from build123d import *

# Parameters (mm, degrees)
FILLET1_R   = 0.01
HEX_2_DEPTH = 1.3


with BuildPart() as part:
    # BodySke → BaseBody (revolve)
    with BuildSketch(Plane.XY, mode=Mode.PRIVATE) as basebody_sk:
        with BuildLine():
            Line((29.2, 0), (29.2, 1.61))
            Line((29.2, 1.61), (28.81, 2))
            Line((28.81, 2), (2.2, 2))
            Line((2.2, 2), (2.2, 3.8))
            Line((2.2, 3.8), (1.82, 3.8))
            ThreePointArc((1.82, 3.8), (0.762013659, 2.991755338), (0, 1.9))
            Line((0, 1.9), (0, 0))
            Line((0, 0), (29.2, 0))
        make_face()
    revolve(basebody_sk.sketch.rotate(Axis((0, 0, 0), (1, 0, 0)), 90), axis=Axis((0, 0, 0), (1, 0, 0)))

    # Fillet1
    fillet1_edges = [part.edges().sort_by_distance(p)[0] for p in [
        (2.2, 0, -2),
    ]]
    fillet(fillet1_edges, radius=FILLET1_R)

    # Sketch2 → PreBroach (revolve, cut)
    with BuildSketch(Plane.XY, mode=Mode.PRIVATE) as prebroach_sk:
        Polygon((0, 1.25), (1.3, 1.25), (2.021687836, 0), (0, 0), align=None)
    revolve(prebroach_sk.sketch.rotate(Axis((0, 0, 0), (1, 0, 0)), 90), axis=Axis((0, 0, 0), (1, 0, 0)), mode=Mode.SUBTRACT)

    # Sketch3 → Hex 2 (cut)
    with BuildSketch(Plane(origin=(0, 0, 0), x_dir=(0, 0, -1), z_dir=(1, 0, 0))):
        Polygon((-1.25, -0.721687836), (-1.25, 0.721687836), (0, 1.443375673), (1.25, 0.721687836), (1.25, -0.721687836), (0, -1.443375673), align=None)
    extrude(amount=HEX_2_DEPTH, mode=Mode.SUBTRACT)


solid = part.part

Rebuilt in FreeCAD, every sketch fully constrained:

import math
import FreeCAD as App
import Part
import Sketcher

V = App.Vector
Q = App.Units.Quantity


def edges_at(feature, points):
    """Names of the edges that pass closest to the given points."""
    edges = feature.Shape.Edges
    near = lambda p: min(range(len(edges)), key=lambda i: edges[i].distToShape(Part.Vertex(*p))[0])
    return sorted({f"Edge{near(p) + 1}" for p in points})

doc = App.newDocument("Part")
body = doc.addObject("PartDesign::Body", "Body")

sketch1 = doc.addObject("Sketcher::SketchObject", "Sketch")
body.addObject(sketch1)
sketch1.AttachmentSupport = (doc.XY_Plane, [""])
sketch1.MapMode = "FlatFace"
sketch1.addGeometry(Part.LineSegment(V(29.2, 0, 0), V(29.2, 1.61, 0)), False)
sketch1.addGeometry(Part.LineSegment(V(29.2, 1.61, 0), V(28.81, 2, 0)), False)
sketch1.addGeometry(Part.LineSegment(V(28.81, 2, 0), V(2.2, 2, 0)), False)
sketch1.addGeometry(Part.LineSegment(V(2.2, 2, 0), V(2.2, 3.8, 0)), False)
sketch1.addGeometry(Part.LineSegment(V(2.2, 3.8, 0), V(1.82, 3.8, 0)), False)
sketch1.addGeometry(Part.ArcOfCircle(Part.Circle(V(3.89, 0, 0), V(0, 0, 1), 4.32), math.radians(119), math.radians(154)), False)
sketch1.addGeometry(Part.LineSegment(V(0, 1.9, 0), V(0, 0, 0)), False)
sketch1.addGeometry(Part.LineSegment(V(0, 0, 0), V(29.2, 0, 0)), False)
sketch1.addConstraint(Sketcher.Constraint("Coincident", 0, 2, 1, 1))
sketch1.addConstraint(Sketcher.Constraint("Coincident", 1, 2, 2, 1))
sketch1.addConstraint(Sketcher.Constraint("Coincident", 2, 2, 3, 1))
sketch1.addConstraint(Sketcher.Constraint("Coincident", 3, 2, 4, 1))
sketch1.addConstraint(Sketcher.Constraint("Coincident", 4, 2, 5, 1))
sketch1.addConstraint(Sketcher.Constraint("Coincident", 5, 2, 6, 1))
sketch1.addConstraint(Sketcher.Constraint("Coincident", 6, 2, 7, 1))
sketch1.addConstraint(Sketcher.Constraint("Coincident", 7, 2, 0, 1))
sketch1.addConstraint(Sketcher.Constraint("Vertical", 0))
sketch1.addConstraint(Sketcher.Constraint("Horizontal", 2))
sketch1.addConstraint(Sketcher.Constraint("Vertical", 3))
sketch1.addConstraint(Sketcher.Constraint("Horizontal", 4))
sketch1.addConstraint(Sketcher.Constraint("Vertical", 6))
sketch1.addConstraint(Sketcher.Constraint("Horizontal", 7))
sketch1.addConstraint(Sketcher.Constraint("Coincident", 6, 2, -1, 1))
sketch1.addConstraint(Sketcher.Constraint("PointOnObject", 5, 3, -1))
sketch1.addConstraint(Sketcher.Constraint("Angle", 1, Q("135 deg")))
sketch1.addConstraint(Sketcher.Constraint("DistanceX", 7, 1, 7, 2, Q("29.2 mm")))
sketch1.addConstraint(Sketcher.Constraint("DistanceY", 3, 1, 3, 2, Q("1.8 mm")))
sketch1.addConstraint(Sketcher.Constraint("DistanceY", 6, 2, 6, 1, Q("1.9 mm")))
sketch1.addConstraint(Sketcher.Constraint("DistanceY", -1, 1, 1, 2, Q("2 mm")))
sketch1.addConstraint(Sketcher.Constraint("DistanceX", 2, 2, 0, 2, Q("27 mm")))
sketch1.addConstraint(Sketcher.Constraint("DistanceX", 2, 2, 2, 1, Q("26.61 mm")))
sketch1.addConstraint(Sketcher.Constraint("DistanceX", 4, 2, 4, 1, Q("0.38 mm")))
revolution = doc.addObject("PartDesign::Revolution", "Revolution")
body.addObject(revolution)
revolution.Profile = sketch1
revolution.ReferenceAxis = (sketch1, ["H_Axis"])
revolution.Angle = 360
doc.recompute()

fillet = doc.addObject("PartDesign::Fillet", "Fillet")
body.addObject(fillet)
fillet.Base = (revolution, edges_at(revolution, [(2.2, 0, -2)]))
fillet.Radius = 0.01

sketch2 = doc.addObject("Sketcher::SketchObject", "Sketch001")
body.addObject(sketch2)
sketch2.AttachmentSupport = (doc.XY_Plane, [""])
sketch2.MapMode = "FlatFace"
sketch2.addGeometry(Part.LineSegment(V(1.3, 1.2, 0), V(0, 1.2, 0)), False)
sketch2.addGeometry(Part.LineSegment(V(0, 1.2, 0), V(0, 0, 0)), False)
sketch2.addGeometry(Part.LineSegment(V(0, 0, 0), V(2, 0, 0)), False)
sketch2.addGeometry(Part.LineSegment(V(2, 0, 0), V(1.3, 1.2, 0)), False)
sketch2.addConstraint(Sketcher.Constraint("Coincident", 0, 2, 1, 1))
sketch2.addConstraint(Sketcher.Constraint("Coincident", 1, 2, 2, 1))
sketch2.addConstraint(Sketcher.Constraint("Coincident", 2, 2, 3, 1))
sketch2.addConstraint(Sketcher.Constraint("Coincident", 3, 2, 0, 1))
sketch2.addConstraint(Sketcher.Constraint("Horizontal", 0))
sketch2.addConstraint(Sketcher.Constraint("Vertical", 1))
sketch2.addConstraint(Sketcher.Constraint("Horizontal", 2))
sketch2.addConstraint(Sketcher.Constraint("Coincident", 1, 2, -1, 1))
sketch2.addConstraint(Sketcher.Constraint("Angle", 3, Q("120 deg")))
sketch2.addConstraint(Sketcher.Constraint("DistanceX", 0, 2, 0, 1, Q("1.3 mm")))
sketch2.addConstraint(Sketcher.Constraint("DistanceY", 1, 2, 1, 1, Q("1.25 mm")))
groove = doc.addObject("PartDesign::Groove", "Groove")
body.addObject(groove)
groove.Profile = sketch2
groove.ReferenceAxis = (sketch2, ["H_Axis"])
groove.Angle = 360

sketch3 = doc.addObject("Sketcher::SketchObject", "Sketch002")
body.addObject(sketch3)
sketch3.AttachmentSupport = (doc.YZ_Plane, [""])
sketch3.MapMode = "FlatFace"
sketch3.addGeometry(Part.LineSegment(V(0.7, 1.2, 0), V(-0.7, 1.2, 0)), False)
sketch3.addGeometry(Part.LineSegment(V(-0.7, 1.2, 0), V(-1.4, 0, 0)), False)
sketch3.addGeometry(Part.LineSegment(V(-1.4, 0, 0), V(-0.7, -1.2, 0)), False)
sketch3.addGeometry(Part.LineSegment(V(-0.7, -1.2, 0), V(0.7, -1.2, 0)), False)
sketch3.addGeometry(Part.LineSegment(V(0.7, -1.2, 0), V(1.4, 0, 0)), False)
sketch3.addGeometry(Part.LineSegment(V(1.4, 0, 0), V(0.7, 1.2, 0)), False)
sketch3.addConstraint(Sketcher.Constraint("Coincident", 0, 2, 1, 1))
sketch3.addConstraint(Sketcher.Constraint("Coincident", 1, 2, 2, 1))
sketch3.addConstraint(Sketcher.Constraint("Coincident", 2, 2, 3, 1))
sketch3.addConstraint(Sketcher.Constraint("Coincident", 3, 2, 4, 1))
sketch3.addConstraint(Sketcher.Constraint("Coincident", 4, 2, 5, 1))
sketch3.addConstraint(Sketcher.Constraint("Coincident", 5, 2, 0, 1))
sketch3.addConstraint(Sketcher.Constraint("Horizontal", 0))
sketch3.addConstraint(Sketcher.Constraint("Horizontal", 3))
sketch3.addConstraint(Sketcher.Constraint("Symmetric", 0, 2, 3, 2, -1, 1))
sketch3.addConstraint(Sketcher.Constraint("Symmetric", 1, 2, 4, 2, -1, 1))
sketch3.addConstraint(Sketcher.Constraint("PointOnObject", 1, 2, -1))
sketch3.addConstraint(Sketcher.Constraint("Parallel", 2, 5))
sketch3.addConstraint(Sketcher.Constraint("Vertical", 0, 2, 2, 2))
sketch3.addConstraint(Sketcher.Constraint("Angle", 1, Q("-120 deg")))
sketch3.addConstraint(Sketcher.Constraint("DistanceY", 2, 2, 0, 2, Q("2.5 mm")))
sketch3.addConstraint(Sketcher.Constraint("DistanceX", 0, 2, 0, 1, Q("1.443376 mm")))
pocket1 = doc.addObject("PartDesign::Pocket", "Pocket")
body.addObject(pocket1)
pocket1.Profile = sketch3
pocket1.Length = 1.3
pocket1.Reversed = True

doc.recompute()
